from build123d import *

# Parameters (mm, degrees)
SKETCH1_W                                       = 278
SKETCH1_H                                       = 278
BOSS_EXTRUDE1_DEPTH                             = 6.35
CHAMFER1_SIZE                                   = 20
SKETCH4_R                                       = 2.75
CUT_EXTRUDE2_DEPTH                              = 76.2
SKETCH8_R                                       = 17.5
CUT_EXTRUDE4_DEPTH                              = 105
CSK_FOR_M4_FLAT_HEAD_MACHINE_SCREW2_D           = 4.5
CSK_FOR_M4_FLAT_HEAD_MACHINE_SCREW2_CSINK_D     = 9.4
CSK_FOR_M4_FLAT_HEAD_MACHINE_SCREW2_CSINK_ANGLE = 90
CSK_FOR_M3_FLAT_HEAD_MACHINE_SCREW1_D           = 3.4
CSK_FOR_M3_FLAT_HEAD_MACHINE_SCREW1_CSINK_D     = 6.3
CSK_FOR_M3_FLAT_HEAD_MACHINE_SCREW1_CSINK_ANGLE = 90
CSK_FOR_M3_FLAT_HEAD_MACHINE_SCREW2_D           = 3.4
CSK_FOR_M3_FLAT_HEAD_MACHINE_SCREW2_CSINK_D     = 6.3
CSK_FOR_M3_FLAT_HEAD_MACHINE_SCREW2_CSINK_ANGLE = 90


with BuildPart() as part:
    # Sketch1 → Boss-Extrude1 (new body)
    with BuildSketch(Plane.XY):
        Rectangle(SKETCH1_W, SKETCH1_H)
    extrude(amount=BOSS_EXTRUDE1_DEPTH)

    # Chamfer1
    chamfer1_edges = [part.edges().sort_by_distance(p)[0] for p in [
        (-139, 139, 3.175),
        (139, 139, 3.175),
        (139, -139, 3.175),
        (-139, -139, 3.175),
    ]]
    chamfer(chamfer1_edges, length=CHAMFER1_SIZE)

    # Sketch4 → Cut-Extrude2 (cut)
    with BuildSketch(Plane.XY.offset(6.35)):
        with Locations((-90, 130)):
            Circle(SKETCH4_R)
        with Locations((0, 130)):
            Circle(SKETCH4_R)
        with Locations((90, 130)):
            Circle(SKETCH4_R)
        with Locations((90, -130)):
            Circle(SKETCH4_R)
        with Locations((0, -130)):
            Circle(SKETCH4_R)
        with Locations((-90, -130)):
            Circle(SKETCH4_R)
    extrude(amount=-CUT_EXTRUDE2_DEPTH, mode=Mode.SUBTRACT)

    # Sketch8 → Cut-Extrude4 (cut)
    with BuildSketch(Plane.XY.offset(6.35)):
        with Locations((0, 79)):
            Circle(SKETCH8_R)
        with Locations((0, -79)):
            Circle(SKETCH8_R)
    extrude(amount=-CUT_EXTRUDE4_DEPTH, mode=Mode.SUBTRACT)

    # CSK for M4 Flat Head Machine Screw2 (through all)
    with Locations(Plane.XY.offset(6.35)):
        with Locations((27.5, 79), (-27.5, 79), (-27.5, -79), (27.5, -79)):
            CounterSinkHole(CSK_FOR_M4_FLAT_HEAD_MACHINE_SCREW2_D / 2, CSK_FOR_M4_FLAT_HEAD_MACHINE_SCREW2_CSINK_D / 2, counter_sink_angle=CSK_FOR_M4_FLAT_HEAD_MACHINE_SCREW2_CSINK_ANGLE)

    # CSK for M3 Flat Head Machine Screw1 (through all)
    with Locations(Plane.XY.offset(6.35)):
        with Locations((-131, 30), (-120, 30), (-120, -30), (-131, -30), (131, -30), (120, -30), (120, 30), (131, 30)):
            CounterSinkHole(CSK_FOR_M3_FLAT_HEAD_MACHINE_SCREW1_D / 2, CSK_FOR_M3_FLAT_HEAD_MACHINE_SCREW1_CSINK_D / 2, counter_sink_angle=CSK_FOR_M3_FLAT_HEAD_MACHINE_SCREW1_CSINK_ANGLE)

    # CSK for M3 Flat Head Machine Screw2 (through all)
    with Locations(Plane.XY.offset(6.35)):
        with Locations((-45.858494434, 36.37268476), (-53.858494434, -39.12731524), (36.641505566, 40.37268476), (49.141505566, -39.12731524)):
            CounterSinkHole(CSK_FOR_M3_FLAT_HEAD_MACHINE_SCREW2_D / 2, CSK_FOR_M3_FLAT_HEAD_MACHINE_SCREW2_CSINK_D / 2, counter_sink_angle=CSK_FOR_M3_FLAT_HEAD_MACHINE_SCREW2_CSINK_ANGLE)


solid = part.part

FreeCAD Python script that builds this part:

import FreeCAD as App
import Part
import Sketcher
Q = App.Units.Quantity


def edges_at(feature, points):
    """Names of the edges that pass closest to the given points."""
    edges = feature.Shape.Edges
    near = lambda p: min(range(len(edges)), key=lambda i: edges[i].distToShape(Part.Vertex(*p))[0])
    return sorted({f"Edge{near(p) + 1}" for p in points})

doc = App.newDocument("Part")
body = doc.addObject("PartDesign::Body", "Body")

sketch1 = doc.addObject("Sketcher::SketchObject", "Sketch")
body.addObject(sketch1)
sketch1.AttachmentSupport = (doc.XY_Plane, [""])
sketch1.MapMode = "FlatFace"
sketch1.addGeometry([
    Part.LineSegment(App.Vector(-139, 139, 0), App.Vector(-139, -139, 0)),
    Part.LineSegment(App.Vector(-139, -139, 0), App.Vector(139, -139, 0)),
    Part.LineSegment(App.Vector(139, -139, 0), App.Vector(139, 139, 0)),
    Part.LineSegment(App.Vector(139, 139, 0), App.Vector(-139, 139, 0)),
], False)
sketch1.addConstraint([
    Sketcher.Constraint("Coincident", 0, 2, 1, 1),
    Sketcher.Constraint("Coincident", 1, 2, 2, 1),
    Sketcher.Constraint("Coincident", 2, 2, 3, 1),
    Sketcher.Constraint("Coincident", 3, 2, 0, 1),
    Sketcher.Constraint("Vertical", 0),
    Sketcher.Constraint("Horizontal", 1),
    Sketcher.Constraint("Vertical", 2),
    Sketcher.Constraint("Horizontal", 3),
    Sketcher.Constraint("Symmetric", 0, 2, 2, 2, -1, 1),
    Sketcher.Constraint("Equal", 3, 0),
    Sketcher.Constraint("DistanceX", 1, 1, 1, 2, Q("278 mm")),
])
pad1 = doc.addObject("PartDesign::Pad", "Pad")
body.addObject(pad1)
pad1.Profile = sketch1
pad1.Length = 6.35
doc.recompute()

chamfer = doc.addObject("PartDesign::Chamfer", "Chamfer")
body.addObject(chamfer)
chamfer.Base = (pad1, edges_at(pad1, [
    (-139, 139, 3.175),
    (139, 139, 3.175),
    (139, -139, 3.175),
    (-139, -139, 3.175),
]))
chamfer.Size = 20

sketch2 = doc.addObject("Sketcher::SketchObject", "Sketch001")
body.addObject(sketch2)
sketch2.AttachmentSupport = (doc.XY_Plane, [""])
sketch2.MapMode = "FlatFace"
sketch2.AttachmentOffset = App.Placement(App.Vector(0, 0, 6.35), App.Rotation())
sketch2.addGeometry([
    Part.Circle(App.Vector(-90, 130, 0), App.Vector(0, 0, 1), 2.8),
    Part.Circle(App.Vector(0, 130, 0), App.Vector(0, 0, 1), 2.8),
    Part.Circle(App.Vector(90, 130, 0), App.Vector(0, 0, 1), 2.8),
    Part.Circle(App.Vector(90, -130, 0), App.Vector(0, 0, 1), 2.8),
    Part.Circle(App.Vector(0, -130, 0), App.Vector(0, 0, 1), 2.8),
    Part.Circle(App.Vector(-90, -130, 0), App.Vector(0, 0, 1), 2.8),
], False)
sketch2.addConstraint([
    Sketcher.Constraint("Equal", 0, 1),
    Sketcher.Constraint("Equal", 1, 2),
    Sketcher.Constraint("Equal", 2, 3),
    Sketcher.Constraint("Equal", 3, 4),
    Sketcher.Constraint("Equal", 4, 5),
    Sketcher.Constraint("Symmetric", 0, 3, 3, 3, -1, 1),
    Sketcher.Constraint("Symmetric", 1, 3, 4, 3, -1, 1),
    Sketcher.Constraint("Symmetric", 2, 3, 5, 3, -1, 1),
    Sketcher.Constraint("Symmetric", 0, 3, 2, 3, -2),
    Sketcher.Constraint("PointOnObject", 1, 3, -2),
    Sketcher.Constraint("Horizontal", 0, 3, 1, 3),
    Sketcher.Constraint("Diameter", 0, Q("5.5 mm")),
    Sketcher.Constraint("DistanceX", 0, 3, -1, 1, Q("90 mm")),
    Sketcher.Constraint("DistanceY", -1, 1, 0, 3, Q("130 mm")),
])
pocket1 = doc.addObject("PartDesign::Pocket", "Pocket")
body.addObject(pocket1)
pocket1.Profile = sketch2
pocket1.Length = 76.2

sketch3 = doc.addObject("Sketcher::SketchObject", "Sketch002")
body.addObject(sketch3)
sketch3.AttachmentSupport = (doc.XY_Plane, [""])
sketch3.MapMode = "FlatFace"
sketch3.AttachmentOffset = App.Placement(App.Vector(0, 0, 6.35), App.Rotation())
sketch3.addGeometry([
    Part.Circle(App.Vector(0, 79, 0), App.Vector(0, 0, 1), 18),
    Part.Circle(App.Vector(0, -79, 0), App.Vector(0, 0, 1), 18),
], False)
sketch3.addConstraint([
    Sketcher.Constraint("Equal", 0, 1),
    Sketcher.Constraint("Symmetric", 0, 3, 1, 3, -1, 1),
    Sketcher.Constraint("PointOnObject", 0, 3, -2),
    Sketcher.Constraint("Diameter", 0, Q("35 mm")),
    Sketcher.Constraint("DistanceY", -1, 1, 0, 3, Q("79 mm")),
])
pocket2 = doc.addObject("PartDesign::Pocket", "Pocket001")
body.addObject(pocket2)
pocket2.Profile = sketch3
pocket2.Length = 105

sketch4 = doc.addObject("Sketcher::SketchObject", "Sketch003")
body.addObject(sketch4)
sketch4.AttachmentSupport = (doc.XY_Plane, [""])
sketch4.MapMode = "FlatFace"
sketch4.AttachmentOffset = App.Placement(App.Vector(0, 0, 6.35), App.Rotation())
sketch4.addGeometry([
    Part.Circle(App.Vector(27.5, 79, 0), App.Vector(0, 0, 1), 2.2),
    Part.Circle(App.Vector(-27.5, 79, 0), App.Vector(0, 0, 1), 2.2),
    Part.Circle(App.Vector(-27.5, -79, 0), App.Vector(0, 0, 1), 2.2),
    Part.Circle(App.Vector(27.5, -79, 0), App.Vector(0, 0, 1), 2.2),
], False)
sketch4.addConstraint([
    Sketcher.Constraint("Equal", 0, 1),
    Sketcher.Constraint("Equal", 1, 2),
    Sketcher.Constraint("Equal", 2, 3),
    Sketcher.Constraint("Symmetric", 0, 3, 2, 3, -1, 1),
    Sketcher.Constraint("Symmetric", 1, 3, 3, 3, -1, 1),
    Sketcher.Constraint("Symmetric", 0, 3, 1, 3, -2),
    Sketcher.Constraint("Diameter", 0, Q("4.5 mm")),
    Sketcher.Constraint("DistanceY", -1, 1, 0, 3, Q("79 mm")),
    Sketcher.Constraint("DistanceX", 1, 3, 0, 3, Q("55 mm")),
])
doc.recompute()
hole = doc.addObject("PartDesign::Hole", "Hole")
body.addObject(hole)
hole.Profile = sketch4
hole.ThreadType = "None"
hole.Diameter = 4.5
hole.DepthType = "ThroughAll"
hole.HoleCutType = "Countersink"
hole.HoleCutDiameter = 9.4
hole.HoleCutCountersinkAngle = 90

sketch5 = doc.addObject("Sketcher::SketchObject", "Sketch004")
body.addObject(sketch5)
sketch5.AttachmentSupport = (doc.XY_Plane, [""])
sketch5.MapMode = "FlatFace"
sketch5.AttachmentOffset = App.Placement(App.Vector(0, 0, 6.35), App.Rotation())
sketch5.addGeometry([
    Part.Circle(App.Vector(-131, 30, 0), App.Vector(0, 0, 1), 1.7),
    Part.Circle(App.Vector(-120, 30, 0), App.Vector(0, 0, 1), 1.7),
    Part.Circle(App.Vector(-120, -30, 0), App.Vector(0, 0, 1), 1.7),
    Part.Circle(App.Vector(-131, -30, 0), App.Vector(0, 0, 1), 1.7),
    Part.Circle(App.Vector(131, -30, 0), App.Vector(0, 0, 1), 1.7),
    Part.Circle(App.Vector(120, -30, 0), App.Vector(0, 0, 1), 1.7),
    Part.Circle(App.Vector(120, 30, 0), App.Vector(0, 0, 1), 1.7),
    Part.Circle(App.Vector(131, 30, 0), App.Vector(0, 0, 1), 1.7),
], False)
sketch5.addConstraint([
    Sketcher.Constraint("Equal", 0, 1),
    Sketcher.Constraint("Equal", 1, 2),
    Sketcher.Constraint("Equal", 2, 3),
    Sketcher.Constraint("Equal", 3, 4),
    Sketcher.Constraint("Equal", 4, 5),
    Sketcher.Constraint("Equal", 5, 6),
    Sketcher.Constraint("Equal", 6, 7),
    Sketcher.Constraint("Symmetric", 0, 3, 4, 3, -1, 1),
    Sketcher.Constraint("Symmetric", 1, 3, 5, 3, -1, 1),
    Sketcher.Constraint("Symmetric", 2, 3, 6, 3, -1, 1),
    Sketcher.Constraint("Symmetric", 3, 3, 7, 3, -1, 1),
    Sketcher.Constraint("Symmetric", 3, 3, 4, 3, -2),
    Sketcher.Constraint("Symmetric", 2, 3, 5, 3, -2),
    Sketcher.Constraint("Horizontal", 0, 3, 1, 3),
    Sketcher.Constraint("Diameter", 0, Q("3.4 mm")),
    Sketcher.Constraint("DistanceX", 0, 3, -1, 1, Q("131 mm")),
    Sketcher.Constraint("DistanceY", -1, 1, 0, 3, Q("30 mm")),
    Sketcher.Constraint("DistanceX", 1, 3, -1, 1, Q("120 mm")),
])
doc.recompute()
hole2 = doc.addObject("PartDesign::Hole", "Hole001")
body.addObject(hole2)
hole2.Profile = sketch5
hole2.ThreadType = "None"
hole2.Diameter = 3.4
hole2.DepthType = "ThroughAll"
hole2.HoleCutType = "Countersink"
hole2.HoleCutDiameter = 6.3
hole2.HoleCutCountersinkAngle = 90

sketch6 = doc.addObject("Sketcher::SketchObject", "Sketch005")
body.addObject(sketch6)
sketch6.AttachmentSupport = (doc.XY_Plane, [""])
sketch6.MapMode = "FlatFace"
sketch6.AttachmentOffset = App.Placement(App.Vector(0, 0, 6.35), App.Rotation())
sketch6.addGeometry([
    Part.Circle(App.Vector(-45.9, 36.4, 0), App.Vector(0, 0, 1), 1.7),
    Part.Circle(App.Vector(-53.9, -39.1, 0), App.Vector(0, 0, 1), 1.7),
    Part.Circle(App.Vector(36.6, 40.4, 0), App.Vector(0, 0, 1), 1.7),
    Part.Circle(App.Vector(49.1, -39.1, 0), App.Vector(0, 0, 1), 1.7),
], False)
sketch6.addConstraint([
    Sketcher.Constraint("Equal", 0, 1),
    Sketcher.Constraint("Equal", 1, 2),
    Sketcher.Constraint("Equal", 2, 3),
    Sketcher.Constraint("Horizontal", 1, 3, 3, 3),
    Sketcher.Constraint("Diameter", 0, Q("3.4 mm")),
    Sketcher.Constraint("DistanceX", 1, 3, 0, 3, Q("8 mm")),
    Sketcher.Constraint("DistanceY", 0, 3, 2, 3, Q("4 mm")),
    Sketcher.Constraint("DistanceX", 1, 3, 3, 3, Q("103 mm")),
    Sketcher.Constraint("DistanceY", 1, 3, 0, 3, Q("75.5 mm")),
    Sketcher.Constraint("DistanceX", 0, 3, 2, 3, Q("82.5 mm")),
    Sketcher.Constraint("DistanceX", 0, 3, -1, 1, Q("45.858494 mm")),
    Sketcher.Constraint("DistanceY", -1, 1, 0, 3, Q("36.372685 mm")),
])
doc.recompute()
hole3 = doc.addObject("PartDesign::Hole", "Hole002")
body.addObject(hole3)
hole3.Profile = sketch6
hole3.ThreadType = "None"
hole3.Diameter = 3.4
hole3.DepthType = "ThroughAll"
hole3.HoleCutType = "Countersink"
hole3.HoleCutDiameter = 6.3
hole3.HoleCutCountersinkAngle = 90

doc.recompute()
